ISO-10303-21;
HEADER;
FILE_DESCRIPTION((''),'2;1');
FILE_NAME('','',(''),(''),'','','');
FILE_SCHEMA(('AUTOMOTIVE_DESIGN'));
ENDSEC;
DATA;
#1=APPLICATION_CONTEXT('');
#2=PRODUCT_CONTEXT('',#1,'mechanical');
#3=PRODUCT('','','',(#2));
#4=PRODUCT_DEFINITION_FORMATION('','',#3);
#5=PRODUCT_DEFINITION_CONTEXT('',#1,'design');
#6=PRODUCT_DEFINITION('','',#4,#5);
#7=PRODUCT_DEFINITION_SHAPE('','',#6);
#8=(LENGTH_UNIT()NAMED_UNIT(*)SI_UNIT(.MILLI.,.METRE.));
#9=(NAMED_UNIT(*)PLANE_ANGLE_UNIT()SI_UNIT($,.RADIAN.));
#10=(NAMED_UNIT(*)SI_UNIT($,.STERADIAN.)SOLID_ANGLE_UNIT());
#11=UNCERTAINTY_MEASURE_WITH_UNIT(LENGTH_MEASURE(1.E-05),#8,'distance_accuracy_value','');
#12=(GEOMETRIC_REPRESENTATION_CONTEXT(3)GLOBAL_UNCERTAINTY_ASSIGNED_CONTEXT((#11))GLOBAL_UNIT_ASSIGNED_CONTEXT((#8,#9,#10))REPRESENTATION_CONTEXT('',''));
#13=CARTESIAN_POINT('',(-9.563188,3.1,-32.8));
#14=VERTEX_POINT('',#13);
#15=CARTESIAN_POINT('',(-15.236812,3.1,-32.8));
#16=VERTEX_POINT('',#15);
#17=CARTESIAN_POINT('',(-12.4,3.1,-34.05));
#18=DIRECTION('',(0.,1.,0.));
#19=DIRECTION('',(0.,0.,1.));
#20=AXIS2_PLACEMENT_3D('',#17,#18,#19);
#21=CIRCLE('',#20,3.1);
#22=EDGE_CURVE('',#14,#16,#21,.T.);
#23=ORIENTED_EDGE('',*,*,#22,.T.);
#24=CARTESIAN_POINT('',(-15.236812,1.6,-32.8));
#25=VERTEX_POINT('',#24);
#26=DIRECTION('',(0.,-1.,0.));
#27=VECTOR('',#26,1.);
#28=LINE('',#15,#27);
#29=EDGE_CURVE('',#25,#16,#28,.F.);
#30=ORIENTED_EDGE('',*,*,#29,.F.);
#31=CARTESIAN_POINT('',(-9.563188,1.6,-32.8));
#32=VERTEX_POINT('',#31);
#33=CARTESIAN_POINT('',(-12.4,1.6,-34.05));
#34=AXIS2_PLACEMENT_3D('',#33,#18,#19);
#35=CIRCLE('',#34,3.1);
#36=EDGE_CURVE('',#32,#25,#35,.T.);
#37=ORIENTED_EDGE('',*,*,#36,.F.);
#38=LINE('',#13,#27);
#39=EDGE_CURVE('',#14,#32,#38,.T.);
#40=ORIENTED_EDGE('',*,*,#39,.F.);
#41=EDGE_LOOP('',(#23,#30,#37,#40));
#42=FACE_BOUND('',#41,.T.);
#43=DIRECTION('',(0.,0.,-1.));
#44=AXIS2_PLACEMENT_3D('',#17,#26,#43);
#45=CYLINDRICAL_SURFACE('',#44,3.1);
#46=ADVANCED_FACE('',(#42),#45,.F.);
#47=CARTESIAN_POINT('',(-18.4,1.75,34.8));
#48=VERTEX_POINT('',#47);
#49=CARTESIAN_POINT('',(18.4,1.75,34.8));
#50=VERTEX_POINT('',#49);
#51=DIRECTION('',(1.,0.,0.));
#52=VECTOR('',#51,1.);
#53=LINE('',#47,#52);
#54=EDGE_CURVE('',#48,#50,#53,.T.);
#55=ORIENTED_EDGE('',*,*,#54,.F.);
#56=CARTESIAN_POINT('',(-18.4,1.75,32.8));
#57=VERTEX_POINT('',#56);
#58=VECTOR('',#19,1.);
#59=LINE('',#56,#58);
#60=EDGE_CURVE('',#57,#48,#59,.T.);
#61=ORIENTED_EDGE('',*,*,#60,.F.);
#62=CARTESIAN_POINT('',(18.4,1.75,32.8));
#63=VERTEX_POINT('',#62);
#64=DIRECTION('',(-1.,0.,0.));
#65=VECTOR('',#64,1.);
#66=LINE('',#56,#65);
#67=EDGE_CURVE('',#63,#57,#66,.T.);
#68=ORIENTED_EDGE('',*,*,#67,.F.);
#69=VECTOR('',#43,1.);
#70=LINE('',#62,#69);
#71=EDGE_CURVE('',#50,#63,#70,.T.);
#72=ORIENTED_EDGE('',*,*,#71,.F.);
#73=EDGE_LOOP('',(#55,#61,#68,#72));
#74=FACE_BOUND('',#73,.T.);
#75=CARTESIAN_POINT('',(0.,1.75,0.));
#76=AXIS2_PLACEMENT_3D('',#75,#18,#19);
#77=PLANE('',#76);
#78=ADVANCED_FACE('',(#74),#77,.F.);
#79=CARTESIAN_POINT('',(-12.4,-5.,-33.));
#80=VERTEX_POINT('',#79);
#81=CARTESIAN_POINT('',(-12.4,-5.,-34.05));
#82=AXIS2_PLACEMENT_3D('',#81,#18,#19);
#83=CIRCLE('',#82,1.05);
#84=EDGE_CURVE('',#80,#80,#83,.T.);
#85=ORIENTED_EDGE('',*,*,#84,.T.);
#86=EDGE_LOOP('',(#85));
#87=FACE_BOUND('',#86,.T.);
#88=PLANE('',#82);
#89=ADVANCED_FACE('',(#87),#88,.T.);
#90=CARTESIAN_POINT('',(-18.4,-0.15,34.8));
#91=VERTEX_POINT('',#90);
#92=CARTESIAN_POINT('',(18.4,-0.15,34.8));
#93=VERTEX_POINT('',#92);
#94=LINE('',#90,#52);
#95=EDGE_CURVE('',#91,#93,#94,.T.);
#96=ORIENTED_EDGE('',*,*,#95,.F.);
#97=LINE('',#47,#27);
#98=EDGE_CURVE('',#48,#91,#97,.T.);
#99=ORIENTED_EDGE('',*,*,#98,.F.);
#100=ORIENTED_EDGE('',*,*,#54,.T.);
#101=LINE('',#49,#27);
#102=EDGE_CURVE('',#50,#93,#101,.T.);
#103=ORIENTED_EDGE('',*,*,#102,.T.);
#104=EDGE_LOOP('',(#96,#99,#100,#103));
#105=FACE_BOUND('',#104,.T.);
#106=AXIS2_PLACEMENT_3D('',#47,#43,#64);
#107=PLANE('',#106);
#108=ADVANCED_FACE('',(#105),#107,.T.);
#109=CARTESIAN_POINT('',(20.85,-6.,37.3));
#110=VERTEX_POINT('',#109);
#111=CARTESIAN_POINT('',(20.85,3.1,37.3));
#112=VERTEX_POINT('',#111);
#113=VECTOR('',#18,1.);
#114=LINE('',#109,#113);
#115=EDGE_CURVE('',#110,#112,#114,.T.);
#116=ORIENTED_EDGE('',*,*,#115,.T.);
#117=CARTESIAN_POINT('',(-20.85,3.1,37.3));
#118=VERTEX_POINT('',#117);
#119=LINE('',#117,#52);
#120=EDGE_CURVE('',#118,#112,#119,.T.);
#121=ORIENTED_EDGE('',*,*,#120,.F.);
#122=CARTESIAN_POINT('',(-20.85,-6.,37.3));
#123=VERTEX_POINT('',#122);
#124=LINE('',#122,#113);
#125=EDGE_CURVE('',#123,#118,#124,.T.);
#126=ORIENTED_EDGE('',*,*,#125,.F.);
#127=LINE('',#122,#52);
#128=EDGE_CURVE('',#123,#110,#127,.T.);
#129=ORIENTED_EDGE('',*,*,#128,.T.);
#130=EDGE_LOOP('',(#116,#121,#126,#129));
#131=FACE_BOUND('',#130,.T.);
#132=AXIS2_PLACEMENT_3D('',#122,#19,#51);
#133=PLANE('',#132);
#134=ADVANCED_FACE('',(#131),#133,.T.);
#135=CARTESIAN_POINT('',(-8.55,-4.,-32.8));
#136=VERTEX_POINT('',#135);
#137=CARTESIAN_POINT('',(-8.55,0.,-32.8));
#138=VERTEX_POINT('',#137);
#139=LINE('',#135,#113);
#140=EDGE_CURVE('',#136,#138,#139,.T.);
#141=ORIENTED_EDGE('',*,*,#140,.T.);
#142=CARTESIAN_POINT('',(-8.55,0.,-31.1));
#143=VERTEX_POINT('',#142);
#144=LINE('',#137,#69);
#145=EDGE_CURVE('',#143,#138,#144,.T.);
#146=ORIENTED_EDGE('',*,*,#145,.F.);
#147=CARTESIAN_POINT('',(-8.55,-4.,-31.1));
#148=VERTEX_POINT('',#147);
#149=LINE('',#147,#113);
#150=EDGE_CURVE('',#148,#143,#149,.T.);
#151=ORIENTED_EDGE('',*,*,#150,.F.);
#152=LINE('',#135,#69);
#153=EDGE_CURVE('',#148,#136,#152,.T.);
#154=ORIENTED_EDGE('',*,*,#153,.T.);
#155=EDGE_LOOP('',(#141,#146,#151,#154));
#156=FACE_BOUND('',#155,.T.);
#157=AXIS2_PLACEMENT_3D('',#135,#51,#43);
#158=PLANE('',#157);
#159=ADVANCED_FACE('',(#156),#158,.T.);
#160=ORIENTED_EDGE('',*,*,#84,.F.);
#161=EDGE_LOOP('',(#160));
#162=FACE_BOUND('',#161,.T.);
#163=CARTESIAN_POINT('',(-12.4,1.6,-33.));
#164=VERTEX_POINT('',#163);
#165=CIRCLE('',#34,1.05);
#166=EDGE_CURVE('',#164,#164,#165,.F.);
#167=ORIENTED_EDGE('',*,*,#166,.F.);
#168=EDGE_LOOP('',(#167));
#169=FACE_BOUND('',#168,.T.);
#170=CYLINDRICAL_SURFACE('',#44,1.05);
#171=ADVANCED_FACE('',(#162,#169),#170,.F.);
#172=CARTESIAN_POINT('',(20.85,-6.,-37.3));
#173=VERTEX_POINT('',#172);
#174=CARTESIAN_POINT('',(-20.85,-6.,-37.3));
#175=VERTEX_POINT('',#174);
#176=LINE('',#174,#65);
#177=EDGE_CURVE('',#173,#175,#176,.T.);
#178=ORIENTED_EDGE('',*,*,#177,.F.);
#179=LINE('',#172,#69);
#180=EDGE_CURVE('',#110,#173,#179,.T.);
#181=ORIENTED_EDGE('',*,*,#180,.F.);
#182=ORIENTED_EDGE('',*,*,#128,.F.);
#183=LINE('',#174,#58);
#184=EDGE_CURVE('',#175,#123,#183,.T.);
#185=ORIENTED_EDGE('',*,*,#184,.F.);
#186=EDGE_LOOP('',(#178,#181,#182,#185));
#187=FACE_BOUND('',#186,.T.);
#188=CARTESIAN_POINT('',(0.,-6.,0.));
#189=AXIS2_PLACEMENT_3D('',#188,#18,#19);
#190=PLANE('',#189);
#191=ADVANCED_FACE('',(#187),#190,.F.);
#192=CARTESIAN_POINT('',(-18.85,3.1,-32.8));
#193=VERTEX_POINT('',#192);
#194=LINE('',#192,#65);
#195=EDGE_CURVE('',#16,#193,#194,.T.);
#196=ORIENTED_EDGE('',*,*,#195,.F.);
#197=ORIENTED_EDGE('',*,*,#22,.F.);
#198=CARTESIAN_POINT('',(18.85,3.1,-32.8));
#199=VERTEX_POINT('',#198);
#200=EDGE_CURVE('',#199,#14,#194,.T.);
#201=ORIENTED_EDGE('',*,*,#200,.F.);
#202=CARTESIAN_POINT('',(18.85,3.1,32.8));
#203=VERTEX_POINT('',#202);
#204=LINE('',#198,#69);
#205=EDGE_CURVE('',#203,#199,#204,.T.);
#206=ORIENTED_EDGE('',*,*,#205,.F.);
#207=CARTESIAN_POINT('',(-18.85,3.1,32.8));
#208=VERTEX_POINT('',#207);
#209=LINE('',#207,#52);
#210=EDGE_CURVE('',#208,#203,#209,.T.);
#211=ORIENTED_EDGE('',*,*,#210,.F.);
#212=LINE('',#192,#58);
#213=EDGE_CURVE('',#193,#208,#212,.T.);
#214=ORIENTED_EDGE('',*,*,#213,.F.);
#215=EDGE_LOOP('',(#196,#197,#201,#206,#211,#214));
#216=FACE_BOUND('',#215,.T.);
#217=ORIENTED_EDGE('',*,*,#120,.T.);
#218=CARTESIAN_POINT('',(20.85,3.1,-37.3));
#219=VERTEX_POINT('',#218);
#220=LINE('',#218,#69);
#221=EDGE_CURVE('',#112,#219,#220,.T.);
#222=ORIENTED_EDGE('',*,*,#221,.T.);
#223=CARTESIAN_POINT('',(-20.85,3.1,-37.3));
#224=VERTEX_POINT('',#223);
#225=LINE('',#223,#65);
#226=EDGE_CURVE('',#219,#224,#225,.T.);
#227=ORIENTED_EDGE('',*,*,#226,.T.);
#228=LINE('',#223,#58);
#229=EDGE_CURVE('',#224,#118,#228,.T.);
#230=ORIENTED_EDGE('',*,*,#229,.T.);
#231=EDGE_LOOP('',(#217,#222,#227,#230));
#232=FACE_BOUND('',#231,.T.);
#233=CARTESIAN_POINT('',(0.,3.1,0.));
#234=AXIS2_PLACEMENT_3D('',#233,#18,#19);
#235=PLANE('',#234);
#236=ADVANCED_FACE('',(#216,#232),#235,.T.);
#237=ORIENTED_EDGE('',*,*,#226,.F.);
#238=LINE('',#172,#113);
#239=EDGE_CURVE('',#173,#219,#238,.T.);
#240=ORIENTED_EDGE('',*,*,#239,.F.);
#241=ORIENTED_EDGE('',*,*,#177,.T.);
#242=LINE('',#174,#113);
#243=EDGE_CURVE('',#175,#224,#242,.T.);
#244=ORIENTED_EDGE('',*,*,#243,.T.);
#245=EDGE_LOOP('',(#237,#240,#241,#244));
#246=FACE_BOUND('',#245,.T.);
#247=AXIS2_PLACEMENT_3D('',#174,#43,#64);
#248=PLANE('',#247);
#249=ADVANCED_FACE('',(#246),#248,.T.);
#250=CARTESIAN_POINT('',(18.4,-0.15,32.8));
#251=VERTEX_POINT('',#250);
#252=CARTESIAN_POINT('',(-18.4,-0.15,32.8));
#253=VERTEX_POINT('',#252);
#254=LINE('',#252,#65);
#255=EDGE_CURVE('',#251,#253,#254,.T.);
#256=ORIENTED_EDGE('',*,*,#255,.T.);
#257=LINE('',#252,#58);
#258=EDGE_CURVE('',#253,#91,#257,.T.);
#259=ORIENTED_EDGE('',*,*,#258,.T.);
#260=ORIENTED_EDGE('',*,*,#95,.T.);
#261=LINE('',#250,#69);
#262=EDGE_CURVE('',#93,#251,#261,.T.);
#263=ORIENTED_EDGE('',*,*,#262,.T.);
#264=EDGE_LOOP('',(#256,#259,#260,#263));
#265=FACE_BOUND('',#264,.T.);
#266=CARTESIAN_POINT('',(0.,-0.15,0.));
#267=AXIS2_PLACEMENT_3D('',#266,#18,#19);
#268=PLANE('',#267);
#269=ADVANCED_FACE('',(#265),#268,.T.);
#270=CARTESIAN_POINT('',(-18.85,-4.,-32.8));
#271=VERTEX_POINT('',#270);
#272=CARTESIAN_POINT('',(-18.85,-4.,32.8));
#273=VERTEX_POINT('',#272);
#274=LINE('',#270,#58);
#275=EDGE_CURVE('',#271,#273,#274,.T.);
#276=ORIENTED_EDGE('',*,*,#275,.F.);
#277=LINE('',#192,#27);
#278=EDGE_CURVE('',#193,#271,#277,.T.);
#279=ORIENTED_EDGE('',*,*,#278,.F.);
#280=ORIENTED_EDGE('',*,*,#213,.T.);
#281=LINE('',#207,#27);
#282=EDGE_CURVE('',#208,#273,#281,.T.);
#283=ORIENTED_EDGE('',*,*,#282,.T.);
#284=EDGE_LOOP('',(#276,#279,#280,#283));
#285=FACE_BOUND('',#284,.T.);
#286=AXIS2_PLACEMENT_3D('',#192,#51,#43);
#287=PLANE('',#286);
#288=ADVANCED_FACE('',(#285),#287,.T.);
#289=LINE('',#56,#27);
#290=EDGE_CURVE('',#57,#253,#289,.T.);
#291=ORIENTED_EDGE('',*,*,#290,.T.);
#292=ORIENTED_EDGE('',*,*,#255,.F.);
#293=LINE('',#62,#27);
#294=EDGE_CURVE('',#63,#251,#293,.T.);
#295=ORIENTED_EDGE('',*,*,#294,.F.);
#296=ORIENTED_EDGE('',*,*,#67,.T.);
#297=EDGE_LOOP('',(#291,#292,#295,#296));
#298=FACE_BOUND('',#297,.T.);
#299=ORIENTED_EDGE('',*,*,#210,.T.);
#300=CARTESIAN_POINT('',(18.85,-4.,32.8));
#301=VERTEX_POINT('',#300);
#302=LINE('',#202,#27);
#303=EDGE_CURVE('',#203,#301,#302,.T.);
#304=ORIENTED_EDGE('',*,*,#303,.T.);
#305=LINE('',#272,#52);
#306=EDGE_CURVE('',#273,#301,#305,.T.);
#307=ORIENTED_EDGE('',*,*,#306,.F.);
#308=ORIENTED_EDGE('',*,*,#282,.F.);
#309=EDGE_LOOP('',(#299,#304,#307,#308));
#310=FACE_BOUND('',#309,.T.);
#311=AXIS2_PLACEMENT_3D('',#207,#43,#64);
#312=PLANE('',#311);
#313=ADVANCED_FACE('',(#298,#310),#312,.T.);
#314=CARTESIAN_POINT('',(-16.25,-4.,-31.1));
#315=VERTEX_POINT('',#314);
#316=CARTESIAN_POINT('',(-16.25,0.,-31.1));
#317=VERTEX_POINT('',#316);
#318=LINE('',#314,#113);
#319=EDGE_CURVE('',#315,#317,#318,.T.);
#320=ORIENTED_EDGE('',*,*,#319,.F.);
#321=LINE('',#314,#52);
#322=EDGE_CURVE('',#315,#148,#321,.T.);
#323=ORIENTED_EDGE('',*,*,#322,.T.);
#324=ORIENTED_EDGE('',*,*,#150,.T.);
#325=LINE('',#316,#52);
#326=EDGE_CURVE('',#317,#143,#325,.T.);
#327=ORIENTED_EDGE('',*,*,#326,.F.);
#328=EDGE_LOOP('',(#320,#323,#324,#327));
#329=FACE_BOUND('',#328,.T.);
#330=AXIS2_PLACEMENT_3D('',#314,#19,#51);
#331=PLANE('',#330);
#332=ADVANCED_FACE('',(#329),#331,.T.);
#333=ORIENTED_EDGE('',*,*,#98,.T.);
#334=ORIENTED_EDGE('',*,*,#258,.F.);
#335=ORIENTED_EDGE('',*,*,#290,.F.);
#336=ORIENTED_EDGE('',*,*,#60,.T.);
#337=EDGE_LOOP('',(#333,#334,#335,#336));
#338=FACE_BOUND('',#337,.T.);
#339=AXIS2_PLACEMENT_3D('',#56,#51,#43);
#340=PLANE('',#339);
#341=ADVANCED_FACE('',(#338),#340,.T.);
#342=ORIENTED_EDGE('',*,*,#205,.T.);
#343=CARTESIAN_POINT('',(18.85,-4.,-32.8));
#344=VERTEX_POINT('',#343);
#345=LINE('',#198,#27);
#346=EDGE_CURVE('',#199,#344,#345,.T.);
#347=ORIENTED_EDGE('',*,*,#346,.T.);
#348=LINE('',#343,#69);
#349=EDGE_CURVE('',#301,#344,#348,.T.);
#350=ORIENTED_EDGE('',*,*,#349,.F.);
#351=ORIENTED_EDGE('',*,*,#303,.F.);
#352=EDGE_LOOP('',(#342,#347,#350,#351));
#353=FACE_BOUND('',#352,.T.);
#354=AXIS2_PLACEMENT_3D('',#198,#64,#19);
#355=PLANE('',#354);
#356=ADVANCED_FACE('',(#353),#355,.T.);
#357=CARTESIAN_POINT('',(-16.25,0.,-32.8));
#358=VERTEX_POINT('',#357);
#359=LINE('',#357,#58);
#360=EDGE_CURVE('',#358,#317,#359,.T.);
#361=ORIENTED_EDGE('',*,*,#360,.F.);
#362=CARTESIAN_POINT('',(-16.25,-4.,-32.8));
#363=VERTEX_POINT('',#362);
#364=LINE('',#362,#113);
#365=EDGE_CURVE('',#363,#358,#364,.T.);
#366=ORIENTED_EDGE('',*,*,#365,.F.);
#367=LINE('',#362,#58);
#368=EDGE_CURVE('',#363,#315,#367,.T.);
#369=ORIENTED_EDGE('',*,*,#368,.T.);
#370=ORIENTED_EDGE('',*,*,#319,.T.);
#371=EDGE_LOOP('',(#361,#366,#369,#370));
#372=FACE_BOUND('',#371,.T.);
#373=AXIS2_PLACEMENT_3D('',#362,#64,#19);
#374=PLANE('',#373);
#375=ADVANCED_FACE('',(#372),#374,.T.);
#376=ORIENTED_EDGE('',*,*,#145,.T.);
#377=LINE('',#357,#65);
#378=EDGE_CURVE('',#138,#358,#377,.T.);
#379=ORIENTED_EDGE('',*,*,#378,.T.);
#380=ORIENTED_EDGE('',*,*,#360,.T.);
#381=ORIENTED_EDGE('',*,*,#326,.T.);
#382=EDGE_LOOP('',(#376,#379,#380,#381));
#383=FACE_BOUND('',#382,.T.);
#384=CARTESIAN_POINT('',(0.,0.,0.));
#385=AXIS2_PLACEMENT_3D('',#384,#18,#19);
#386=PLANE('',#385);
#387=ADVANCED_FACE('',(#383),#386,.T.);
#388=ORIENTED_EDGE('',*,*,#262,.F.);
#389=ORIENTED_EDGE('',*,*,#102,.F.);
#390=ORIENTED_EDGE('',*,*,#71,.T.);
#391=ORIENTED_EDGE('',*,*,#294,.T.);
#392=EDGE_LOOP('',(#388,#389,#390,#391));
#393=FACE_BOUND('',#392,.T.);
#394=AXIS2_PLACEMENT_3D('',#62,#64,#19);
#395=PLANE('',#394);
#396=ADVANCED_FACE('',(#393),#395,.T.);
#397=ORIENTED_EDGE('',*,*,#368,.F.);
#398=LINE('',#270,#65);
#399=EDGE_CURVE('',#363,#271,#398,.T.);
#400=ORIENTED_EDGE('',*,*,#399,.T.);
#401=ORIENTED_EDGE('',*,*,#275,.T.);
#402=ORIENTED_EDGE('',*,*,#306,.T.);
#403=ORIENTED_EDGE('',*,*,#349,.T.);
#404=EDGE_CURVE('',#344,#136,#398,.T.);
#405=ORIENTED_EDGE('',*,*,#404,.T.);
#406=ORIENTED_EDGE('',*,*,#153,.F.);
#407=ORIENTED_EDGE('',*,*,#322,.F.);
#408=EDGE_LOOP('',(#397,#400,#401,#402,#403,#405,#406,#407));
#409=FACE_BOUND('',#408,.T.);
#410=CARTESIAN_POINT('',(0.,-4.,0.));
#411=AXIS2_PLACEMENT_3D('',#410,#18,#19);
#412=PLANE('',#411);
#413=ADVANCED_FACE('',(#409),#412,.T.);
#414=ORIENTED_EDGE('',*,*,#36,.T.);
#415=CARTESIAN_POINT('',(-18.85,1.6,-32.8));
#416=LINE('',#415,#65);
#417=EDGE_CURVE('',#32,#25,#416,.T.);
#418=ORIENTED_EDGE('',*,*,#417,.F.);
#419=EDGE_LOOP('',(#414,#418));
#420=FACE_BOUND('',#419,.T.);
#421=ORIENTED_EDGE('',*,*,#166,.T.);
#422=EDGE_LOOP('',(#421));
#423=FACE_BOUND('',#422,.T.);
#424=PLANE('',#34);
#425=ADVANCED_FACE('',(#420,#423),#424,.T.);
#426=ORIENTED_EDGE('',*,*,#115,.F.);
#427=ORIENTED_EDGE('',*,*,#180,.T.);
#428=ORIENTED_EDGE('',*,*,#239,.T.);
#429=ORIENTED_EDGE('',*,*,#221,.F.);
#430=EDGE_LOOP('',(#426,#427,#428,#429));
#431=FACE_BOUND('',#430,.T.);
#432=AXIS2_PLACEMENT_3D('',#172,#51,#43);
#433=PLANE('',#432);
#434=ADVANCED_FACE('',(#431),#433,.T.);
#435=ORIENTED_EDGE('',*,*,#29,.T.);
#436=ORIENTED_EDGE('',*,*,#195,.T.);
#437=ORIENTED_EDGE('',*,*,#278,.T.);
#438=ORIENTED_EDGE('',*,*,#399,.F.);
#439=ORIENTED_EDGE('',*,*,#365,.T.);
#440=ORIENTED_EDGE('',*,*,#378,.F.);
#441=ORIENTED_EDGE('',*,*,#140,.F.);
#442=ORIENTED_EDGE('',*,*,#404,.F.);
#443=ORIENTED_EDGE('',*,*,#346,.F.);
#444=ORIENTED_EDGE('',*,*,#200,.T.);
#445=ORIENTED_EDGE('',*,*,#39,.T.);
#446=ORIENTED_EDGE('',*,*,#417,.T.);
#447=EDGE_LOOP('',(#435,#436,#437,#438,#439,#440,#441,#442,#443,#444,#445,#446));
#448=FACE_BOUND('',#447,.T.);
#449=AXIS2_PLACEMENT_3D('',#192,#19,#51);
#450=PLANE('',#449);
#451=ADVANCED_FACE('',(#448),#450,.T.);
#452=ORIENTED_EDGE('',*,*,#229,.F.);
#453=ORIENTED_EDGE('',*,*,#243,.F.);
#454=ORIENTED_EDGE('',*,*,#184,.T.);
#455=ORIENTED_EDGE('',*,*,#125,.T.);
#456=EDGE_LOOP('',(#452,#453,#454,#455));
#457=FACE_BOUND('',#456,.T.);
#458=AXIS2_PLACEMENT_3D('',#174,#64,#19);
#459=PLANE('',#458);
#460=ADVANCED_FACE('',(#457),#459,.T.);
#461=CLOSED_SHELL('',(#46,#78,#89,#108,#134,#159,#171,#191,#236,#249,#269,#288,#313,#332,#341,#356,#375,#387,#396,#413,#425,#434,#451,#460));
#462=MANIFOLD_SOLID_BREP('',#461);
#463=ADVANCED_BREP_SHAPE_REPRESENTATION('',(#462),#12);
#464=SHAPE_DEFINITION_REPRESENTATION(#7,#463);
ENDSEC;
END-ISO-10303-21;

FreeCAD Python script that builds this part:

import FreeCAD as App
import Part
import Sketcher
from FreeCAD import Vector


def add_polygon(sketch, points):
    """Adds a closed chain of lines whose ends are joined by coincident constraints."""
    first, n = sketch.GeometryCount, len(points)
    for a, b in zip(points, points[1:] + points[:1]):
        sketch.addGeometry(Part.LineSegment(App.Vector(*a, 0), App.Vector(*b, 0)), False)
    for i in range(n):
        sketch.addConstraint(Sketcher.Constraint("Coincident", first + i, 2, first + (i + 1) % n, 1))

doc = App.newDocument("Part")
body = doc.addObject("PartDesign::Body", "Body")

# Sketch on XZ plane
sketch1 = doc.addObject("Sketcher::SketchObject", "Sketch")
body.addObject(sketch1)
sketch1.AttachmentSupport = (doc.XZ_Plane, [""])
sketch1.MapMode = "FlatFace"
add_polygon(sketch1, [(-21, -37), (-21, 37), (21, 37), (21, -37)])  # lines 0-3
sketch1.addConstraint([
    Sketcher.Constraint("Vertical", 0),
    Sketcher.Constraint("Horizontal", 1),
    Sketcher.Constraint("Vertical", 2),
    Sketcher.Constraint("Horizontal", 3),
    Sketcher.Constraint("Symmetric", 0, 2, 2, 2, -1, 1),
    Sketcher.Constraint("DistanceX", 1, 1, 1, 2, 41.7),
    Sketcher.Constraint("DistanceY", 0, 1, 0, 2, 74.6),
])
pad1 = doc.addObject("PartDesign::Pad", "Pad")
body.addObject(pad1)
pad1.Profile = sketch1
pad1.Type = "TwoLengths"
pad1.Length = 3.1
pad1.Length2 = 6
pad1.Reversed = True

# Sketch on XZ plane
sketch2 = doc.addObject("Sketcher::SketchObject", "Sketch001")
body.addObject(sketch2)
sketch2.AttachmentSupport = (doc.XZ_Plane, [""])
sketch2.MapMode = "FlatFace"
add_polygon(sketch2, [(-19, -33), (-19, 33), (19, 33), (19, -33)])  # lines 0-3
sketch2.addConstraint([
    Sketcher.Constraint("Vertical", 0),
    Sketcher.Constraint("Horizontal", 1),
    Sketcher.Constraint("Vertical", 2),
    Sketcher.Constraint("Horizontal", 3),
    Sketcher.Constraint("Symmetric", 0, 2, 2, 2, -1, 1),
    Sketcher.Constraint("DistanceX", 1, 1, 1, 2, 37.7),
    Sketcher.Constraint("DistanceY", 0, 1, 0, 2, 65.6),
])
pocket1 = doc.addObject("PartDesign::Pocket", "Pocket")
body.addObject(pocket1)
pocket1.Profile = sketch2
pocket1.Type = "TwoLengths"
pocket1.Length = 44.151043
pocket1.Length2 = 4

# Sketch on XZ plane
sketch3 = doc.addObject("Sketcher::SketchObject", "Sketch002")
body.addObject(sketch3)
sketch3.AttachmentSupport = (doc.XZ_Plane, [""])
sketch3.MapMode = "FlatFace"
add_polygon(sketch3, [(-18.4, 32.8), (-18.4, 34.8), (18.4, 34.8), (18.4, 32.8)])  # lines 0-3
sketch3.addConstraint([
    Sketcher.Constraint("Vertical", 0),
    Sketcher.Constraint("Horizontal", 1),
    Sketcher.Constraint("Vertical", 2),
    Sketcher.Constraint("Horizontal", 3),
    Sketcher.Constraint("DistanceY", 0, 1, 0, 2, 2.0),
    Sketcher.Constraint("DistanceX", 1, 1, 1, 2, 36.8),
    Sketcher.Constraint("DistanceX", 0, 2, -1, 1, 18.4),
    Sketcher.Constraint("DistanceY", -1, 1, 0, 2, 34.8),
])
pocket2 = doc.addObject("PartDesign::Pocket", "Pocket001")
body.addObject(pocket2)
pocket2.Profile = sketch3
pocket2.Type = "TwoLengths"
pocket2.Length = 1.75
pocket2.Length2 = 0.15

# Sketch on XZ plane
sketch4 = doc.addObject("Sketcher::SketchObject", "Sketch003")
body.addObject(sketch4)
sketch4.AttachmentSupport = (doc.XZ_Plane, [""])
sketch4.MapMode = "FlatFace"
add_polygon(sketch4, [(-16.2, -32.8), (-16.2, -31.1), (-8.6, -31.1), (-8.6, -32.8)])  # lines 0-3
sketch4.addConstraint([
    Sketcher.Constraint("Vertical", 0),
    Sketcher.Constraint("Horizontal", 1),
    Sketcher.Constraint("Vertical", 2),
    Sketcher.Constraint("Horizontal", 3),
    Sketcher.Constraint("DistanceX", 1, 1, 1, 2, 7.7),
    Sketcher.Constraint("DistanceY", 0, 1, 0, 2, 1.7),
    Sketcher.Constraint("DistanceY", 0, 2, -1, 1, 31.1),
    Sketcher.Constraint("DistanceX", 0, 2, -1, 1, 16.25),
])
pad2 = doc.addObject("PartDesign::Pad", "Pad001")
body.addObject(pad2)
pad2.Profile = sketch4
pad2.Length = 4

# Sketch on XZ plane
sketch5 = doc.addObject("Sketcher::SketchObject", "Sketch004")
body.addObject(sketch5)
sketch5.AttachmentSupport = (doc.XZ_Plane, [""])
sketch5.MapMode = "FlatFace"
sketch5.AttachmentOffset = App.Placement(Vector(0, 0, -1.6), App.Rotation())
sketch5.addGeometry(Part.Circle(Vector(-12.4, -34, 0), Vector(0, 0, 1), 3.1), False)
sketch5.addConstraint([
    Sketcher.Constraint("Diameter", 0, 6.2),
    Sketcher.Constraint("DistanceX", 0, 3, -1, 1, 12.4),
    Sketcher.Constraint("DistanceY", 0, 3, -1, 1, 34.05),
])
pocket3 = doc.addObject("PartDesign::Pocket", "Pocket002")
body.addObject(pocket3)
pocket3.Profile = sketch5
pocket3.Type = "ThroughAll"

# Sketch on XZ plane
sketch6 = doc.addObject("Sketcher::SketchObject", "Sketch005")
body.addObject(sketch6)
sketch6.AttachmentSupport = (doc.XZ_Plane, [""])
sketch6.MapMode = "FlatFace"
sketch6.addGeometry(Part.Circle(Vector(-12.4, -34, 0), Vector(0, 0, 1), 1.1), False)
sketch6.addConstraint([
    Sketcher.Constraint("Diameter", 0, 2.1),
    Sketcher.Constraint("DistanceX", 0, 3, -1, 1, 12.4),
    Sketcher.Constraint("DistanceY", 0, 3, -1, 1, 34.05),
])
pocket4 = doc.addObject("PartDesign::Pocket", "Pocket003")
body.addObject(pocket4)
pocket4.Profile = sketch6
pocket4.Type = "TwoLengths"
pocket4.Length = 44.151043
pocket4.Length2 = 5

doc.recompute()
